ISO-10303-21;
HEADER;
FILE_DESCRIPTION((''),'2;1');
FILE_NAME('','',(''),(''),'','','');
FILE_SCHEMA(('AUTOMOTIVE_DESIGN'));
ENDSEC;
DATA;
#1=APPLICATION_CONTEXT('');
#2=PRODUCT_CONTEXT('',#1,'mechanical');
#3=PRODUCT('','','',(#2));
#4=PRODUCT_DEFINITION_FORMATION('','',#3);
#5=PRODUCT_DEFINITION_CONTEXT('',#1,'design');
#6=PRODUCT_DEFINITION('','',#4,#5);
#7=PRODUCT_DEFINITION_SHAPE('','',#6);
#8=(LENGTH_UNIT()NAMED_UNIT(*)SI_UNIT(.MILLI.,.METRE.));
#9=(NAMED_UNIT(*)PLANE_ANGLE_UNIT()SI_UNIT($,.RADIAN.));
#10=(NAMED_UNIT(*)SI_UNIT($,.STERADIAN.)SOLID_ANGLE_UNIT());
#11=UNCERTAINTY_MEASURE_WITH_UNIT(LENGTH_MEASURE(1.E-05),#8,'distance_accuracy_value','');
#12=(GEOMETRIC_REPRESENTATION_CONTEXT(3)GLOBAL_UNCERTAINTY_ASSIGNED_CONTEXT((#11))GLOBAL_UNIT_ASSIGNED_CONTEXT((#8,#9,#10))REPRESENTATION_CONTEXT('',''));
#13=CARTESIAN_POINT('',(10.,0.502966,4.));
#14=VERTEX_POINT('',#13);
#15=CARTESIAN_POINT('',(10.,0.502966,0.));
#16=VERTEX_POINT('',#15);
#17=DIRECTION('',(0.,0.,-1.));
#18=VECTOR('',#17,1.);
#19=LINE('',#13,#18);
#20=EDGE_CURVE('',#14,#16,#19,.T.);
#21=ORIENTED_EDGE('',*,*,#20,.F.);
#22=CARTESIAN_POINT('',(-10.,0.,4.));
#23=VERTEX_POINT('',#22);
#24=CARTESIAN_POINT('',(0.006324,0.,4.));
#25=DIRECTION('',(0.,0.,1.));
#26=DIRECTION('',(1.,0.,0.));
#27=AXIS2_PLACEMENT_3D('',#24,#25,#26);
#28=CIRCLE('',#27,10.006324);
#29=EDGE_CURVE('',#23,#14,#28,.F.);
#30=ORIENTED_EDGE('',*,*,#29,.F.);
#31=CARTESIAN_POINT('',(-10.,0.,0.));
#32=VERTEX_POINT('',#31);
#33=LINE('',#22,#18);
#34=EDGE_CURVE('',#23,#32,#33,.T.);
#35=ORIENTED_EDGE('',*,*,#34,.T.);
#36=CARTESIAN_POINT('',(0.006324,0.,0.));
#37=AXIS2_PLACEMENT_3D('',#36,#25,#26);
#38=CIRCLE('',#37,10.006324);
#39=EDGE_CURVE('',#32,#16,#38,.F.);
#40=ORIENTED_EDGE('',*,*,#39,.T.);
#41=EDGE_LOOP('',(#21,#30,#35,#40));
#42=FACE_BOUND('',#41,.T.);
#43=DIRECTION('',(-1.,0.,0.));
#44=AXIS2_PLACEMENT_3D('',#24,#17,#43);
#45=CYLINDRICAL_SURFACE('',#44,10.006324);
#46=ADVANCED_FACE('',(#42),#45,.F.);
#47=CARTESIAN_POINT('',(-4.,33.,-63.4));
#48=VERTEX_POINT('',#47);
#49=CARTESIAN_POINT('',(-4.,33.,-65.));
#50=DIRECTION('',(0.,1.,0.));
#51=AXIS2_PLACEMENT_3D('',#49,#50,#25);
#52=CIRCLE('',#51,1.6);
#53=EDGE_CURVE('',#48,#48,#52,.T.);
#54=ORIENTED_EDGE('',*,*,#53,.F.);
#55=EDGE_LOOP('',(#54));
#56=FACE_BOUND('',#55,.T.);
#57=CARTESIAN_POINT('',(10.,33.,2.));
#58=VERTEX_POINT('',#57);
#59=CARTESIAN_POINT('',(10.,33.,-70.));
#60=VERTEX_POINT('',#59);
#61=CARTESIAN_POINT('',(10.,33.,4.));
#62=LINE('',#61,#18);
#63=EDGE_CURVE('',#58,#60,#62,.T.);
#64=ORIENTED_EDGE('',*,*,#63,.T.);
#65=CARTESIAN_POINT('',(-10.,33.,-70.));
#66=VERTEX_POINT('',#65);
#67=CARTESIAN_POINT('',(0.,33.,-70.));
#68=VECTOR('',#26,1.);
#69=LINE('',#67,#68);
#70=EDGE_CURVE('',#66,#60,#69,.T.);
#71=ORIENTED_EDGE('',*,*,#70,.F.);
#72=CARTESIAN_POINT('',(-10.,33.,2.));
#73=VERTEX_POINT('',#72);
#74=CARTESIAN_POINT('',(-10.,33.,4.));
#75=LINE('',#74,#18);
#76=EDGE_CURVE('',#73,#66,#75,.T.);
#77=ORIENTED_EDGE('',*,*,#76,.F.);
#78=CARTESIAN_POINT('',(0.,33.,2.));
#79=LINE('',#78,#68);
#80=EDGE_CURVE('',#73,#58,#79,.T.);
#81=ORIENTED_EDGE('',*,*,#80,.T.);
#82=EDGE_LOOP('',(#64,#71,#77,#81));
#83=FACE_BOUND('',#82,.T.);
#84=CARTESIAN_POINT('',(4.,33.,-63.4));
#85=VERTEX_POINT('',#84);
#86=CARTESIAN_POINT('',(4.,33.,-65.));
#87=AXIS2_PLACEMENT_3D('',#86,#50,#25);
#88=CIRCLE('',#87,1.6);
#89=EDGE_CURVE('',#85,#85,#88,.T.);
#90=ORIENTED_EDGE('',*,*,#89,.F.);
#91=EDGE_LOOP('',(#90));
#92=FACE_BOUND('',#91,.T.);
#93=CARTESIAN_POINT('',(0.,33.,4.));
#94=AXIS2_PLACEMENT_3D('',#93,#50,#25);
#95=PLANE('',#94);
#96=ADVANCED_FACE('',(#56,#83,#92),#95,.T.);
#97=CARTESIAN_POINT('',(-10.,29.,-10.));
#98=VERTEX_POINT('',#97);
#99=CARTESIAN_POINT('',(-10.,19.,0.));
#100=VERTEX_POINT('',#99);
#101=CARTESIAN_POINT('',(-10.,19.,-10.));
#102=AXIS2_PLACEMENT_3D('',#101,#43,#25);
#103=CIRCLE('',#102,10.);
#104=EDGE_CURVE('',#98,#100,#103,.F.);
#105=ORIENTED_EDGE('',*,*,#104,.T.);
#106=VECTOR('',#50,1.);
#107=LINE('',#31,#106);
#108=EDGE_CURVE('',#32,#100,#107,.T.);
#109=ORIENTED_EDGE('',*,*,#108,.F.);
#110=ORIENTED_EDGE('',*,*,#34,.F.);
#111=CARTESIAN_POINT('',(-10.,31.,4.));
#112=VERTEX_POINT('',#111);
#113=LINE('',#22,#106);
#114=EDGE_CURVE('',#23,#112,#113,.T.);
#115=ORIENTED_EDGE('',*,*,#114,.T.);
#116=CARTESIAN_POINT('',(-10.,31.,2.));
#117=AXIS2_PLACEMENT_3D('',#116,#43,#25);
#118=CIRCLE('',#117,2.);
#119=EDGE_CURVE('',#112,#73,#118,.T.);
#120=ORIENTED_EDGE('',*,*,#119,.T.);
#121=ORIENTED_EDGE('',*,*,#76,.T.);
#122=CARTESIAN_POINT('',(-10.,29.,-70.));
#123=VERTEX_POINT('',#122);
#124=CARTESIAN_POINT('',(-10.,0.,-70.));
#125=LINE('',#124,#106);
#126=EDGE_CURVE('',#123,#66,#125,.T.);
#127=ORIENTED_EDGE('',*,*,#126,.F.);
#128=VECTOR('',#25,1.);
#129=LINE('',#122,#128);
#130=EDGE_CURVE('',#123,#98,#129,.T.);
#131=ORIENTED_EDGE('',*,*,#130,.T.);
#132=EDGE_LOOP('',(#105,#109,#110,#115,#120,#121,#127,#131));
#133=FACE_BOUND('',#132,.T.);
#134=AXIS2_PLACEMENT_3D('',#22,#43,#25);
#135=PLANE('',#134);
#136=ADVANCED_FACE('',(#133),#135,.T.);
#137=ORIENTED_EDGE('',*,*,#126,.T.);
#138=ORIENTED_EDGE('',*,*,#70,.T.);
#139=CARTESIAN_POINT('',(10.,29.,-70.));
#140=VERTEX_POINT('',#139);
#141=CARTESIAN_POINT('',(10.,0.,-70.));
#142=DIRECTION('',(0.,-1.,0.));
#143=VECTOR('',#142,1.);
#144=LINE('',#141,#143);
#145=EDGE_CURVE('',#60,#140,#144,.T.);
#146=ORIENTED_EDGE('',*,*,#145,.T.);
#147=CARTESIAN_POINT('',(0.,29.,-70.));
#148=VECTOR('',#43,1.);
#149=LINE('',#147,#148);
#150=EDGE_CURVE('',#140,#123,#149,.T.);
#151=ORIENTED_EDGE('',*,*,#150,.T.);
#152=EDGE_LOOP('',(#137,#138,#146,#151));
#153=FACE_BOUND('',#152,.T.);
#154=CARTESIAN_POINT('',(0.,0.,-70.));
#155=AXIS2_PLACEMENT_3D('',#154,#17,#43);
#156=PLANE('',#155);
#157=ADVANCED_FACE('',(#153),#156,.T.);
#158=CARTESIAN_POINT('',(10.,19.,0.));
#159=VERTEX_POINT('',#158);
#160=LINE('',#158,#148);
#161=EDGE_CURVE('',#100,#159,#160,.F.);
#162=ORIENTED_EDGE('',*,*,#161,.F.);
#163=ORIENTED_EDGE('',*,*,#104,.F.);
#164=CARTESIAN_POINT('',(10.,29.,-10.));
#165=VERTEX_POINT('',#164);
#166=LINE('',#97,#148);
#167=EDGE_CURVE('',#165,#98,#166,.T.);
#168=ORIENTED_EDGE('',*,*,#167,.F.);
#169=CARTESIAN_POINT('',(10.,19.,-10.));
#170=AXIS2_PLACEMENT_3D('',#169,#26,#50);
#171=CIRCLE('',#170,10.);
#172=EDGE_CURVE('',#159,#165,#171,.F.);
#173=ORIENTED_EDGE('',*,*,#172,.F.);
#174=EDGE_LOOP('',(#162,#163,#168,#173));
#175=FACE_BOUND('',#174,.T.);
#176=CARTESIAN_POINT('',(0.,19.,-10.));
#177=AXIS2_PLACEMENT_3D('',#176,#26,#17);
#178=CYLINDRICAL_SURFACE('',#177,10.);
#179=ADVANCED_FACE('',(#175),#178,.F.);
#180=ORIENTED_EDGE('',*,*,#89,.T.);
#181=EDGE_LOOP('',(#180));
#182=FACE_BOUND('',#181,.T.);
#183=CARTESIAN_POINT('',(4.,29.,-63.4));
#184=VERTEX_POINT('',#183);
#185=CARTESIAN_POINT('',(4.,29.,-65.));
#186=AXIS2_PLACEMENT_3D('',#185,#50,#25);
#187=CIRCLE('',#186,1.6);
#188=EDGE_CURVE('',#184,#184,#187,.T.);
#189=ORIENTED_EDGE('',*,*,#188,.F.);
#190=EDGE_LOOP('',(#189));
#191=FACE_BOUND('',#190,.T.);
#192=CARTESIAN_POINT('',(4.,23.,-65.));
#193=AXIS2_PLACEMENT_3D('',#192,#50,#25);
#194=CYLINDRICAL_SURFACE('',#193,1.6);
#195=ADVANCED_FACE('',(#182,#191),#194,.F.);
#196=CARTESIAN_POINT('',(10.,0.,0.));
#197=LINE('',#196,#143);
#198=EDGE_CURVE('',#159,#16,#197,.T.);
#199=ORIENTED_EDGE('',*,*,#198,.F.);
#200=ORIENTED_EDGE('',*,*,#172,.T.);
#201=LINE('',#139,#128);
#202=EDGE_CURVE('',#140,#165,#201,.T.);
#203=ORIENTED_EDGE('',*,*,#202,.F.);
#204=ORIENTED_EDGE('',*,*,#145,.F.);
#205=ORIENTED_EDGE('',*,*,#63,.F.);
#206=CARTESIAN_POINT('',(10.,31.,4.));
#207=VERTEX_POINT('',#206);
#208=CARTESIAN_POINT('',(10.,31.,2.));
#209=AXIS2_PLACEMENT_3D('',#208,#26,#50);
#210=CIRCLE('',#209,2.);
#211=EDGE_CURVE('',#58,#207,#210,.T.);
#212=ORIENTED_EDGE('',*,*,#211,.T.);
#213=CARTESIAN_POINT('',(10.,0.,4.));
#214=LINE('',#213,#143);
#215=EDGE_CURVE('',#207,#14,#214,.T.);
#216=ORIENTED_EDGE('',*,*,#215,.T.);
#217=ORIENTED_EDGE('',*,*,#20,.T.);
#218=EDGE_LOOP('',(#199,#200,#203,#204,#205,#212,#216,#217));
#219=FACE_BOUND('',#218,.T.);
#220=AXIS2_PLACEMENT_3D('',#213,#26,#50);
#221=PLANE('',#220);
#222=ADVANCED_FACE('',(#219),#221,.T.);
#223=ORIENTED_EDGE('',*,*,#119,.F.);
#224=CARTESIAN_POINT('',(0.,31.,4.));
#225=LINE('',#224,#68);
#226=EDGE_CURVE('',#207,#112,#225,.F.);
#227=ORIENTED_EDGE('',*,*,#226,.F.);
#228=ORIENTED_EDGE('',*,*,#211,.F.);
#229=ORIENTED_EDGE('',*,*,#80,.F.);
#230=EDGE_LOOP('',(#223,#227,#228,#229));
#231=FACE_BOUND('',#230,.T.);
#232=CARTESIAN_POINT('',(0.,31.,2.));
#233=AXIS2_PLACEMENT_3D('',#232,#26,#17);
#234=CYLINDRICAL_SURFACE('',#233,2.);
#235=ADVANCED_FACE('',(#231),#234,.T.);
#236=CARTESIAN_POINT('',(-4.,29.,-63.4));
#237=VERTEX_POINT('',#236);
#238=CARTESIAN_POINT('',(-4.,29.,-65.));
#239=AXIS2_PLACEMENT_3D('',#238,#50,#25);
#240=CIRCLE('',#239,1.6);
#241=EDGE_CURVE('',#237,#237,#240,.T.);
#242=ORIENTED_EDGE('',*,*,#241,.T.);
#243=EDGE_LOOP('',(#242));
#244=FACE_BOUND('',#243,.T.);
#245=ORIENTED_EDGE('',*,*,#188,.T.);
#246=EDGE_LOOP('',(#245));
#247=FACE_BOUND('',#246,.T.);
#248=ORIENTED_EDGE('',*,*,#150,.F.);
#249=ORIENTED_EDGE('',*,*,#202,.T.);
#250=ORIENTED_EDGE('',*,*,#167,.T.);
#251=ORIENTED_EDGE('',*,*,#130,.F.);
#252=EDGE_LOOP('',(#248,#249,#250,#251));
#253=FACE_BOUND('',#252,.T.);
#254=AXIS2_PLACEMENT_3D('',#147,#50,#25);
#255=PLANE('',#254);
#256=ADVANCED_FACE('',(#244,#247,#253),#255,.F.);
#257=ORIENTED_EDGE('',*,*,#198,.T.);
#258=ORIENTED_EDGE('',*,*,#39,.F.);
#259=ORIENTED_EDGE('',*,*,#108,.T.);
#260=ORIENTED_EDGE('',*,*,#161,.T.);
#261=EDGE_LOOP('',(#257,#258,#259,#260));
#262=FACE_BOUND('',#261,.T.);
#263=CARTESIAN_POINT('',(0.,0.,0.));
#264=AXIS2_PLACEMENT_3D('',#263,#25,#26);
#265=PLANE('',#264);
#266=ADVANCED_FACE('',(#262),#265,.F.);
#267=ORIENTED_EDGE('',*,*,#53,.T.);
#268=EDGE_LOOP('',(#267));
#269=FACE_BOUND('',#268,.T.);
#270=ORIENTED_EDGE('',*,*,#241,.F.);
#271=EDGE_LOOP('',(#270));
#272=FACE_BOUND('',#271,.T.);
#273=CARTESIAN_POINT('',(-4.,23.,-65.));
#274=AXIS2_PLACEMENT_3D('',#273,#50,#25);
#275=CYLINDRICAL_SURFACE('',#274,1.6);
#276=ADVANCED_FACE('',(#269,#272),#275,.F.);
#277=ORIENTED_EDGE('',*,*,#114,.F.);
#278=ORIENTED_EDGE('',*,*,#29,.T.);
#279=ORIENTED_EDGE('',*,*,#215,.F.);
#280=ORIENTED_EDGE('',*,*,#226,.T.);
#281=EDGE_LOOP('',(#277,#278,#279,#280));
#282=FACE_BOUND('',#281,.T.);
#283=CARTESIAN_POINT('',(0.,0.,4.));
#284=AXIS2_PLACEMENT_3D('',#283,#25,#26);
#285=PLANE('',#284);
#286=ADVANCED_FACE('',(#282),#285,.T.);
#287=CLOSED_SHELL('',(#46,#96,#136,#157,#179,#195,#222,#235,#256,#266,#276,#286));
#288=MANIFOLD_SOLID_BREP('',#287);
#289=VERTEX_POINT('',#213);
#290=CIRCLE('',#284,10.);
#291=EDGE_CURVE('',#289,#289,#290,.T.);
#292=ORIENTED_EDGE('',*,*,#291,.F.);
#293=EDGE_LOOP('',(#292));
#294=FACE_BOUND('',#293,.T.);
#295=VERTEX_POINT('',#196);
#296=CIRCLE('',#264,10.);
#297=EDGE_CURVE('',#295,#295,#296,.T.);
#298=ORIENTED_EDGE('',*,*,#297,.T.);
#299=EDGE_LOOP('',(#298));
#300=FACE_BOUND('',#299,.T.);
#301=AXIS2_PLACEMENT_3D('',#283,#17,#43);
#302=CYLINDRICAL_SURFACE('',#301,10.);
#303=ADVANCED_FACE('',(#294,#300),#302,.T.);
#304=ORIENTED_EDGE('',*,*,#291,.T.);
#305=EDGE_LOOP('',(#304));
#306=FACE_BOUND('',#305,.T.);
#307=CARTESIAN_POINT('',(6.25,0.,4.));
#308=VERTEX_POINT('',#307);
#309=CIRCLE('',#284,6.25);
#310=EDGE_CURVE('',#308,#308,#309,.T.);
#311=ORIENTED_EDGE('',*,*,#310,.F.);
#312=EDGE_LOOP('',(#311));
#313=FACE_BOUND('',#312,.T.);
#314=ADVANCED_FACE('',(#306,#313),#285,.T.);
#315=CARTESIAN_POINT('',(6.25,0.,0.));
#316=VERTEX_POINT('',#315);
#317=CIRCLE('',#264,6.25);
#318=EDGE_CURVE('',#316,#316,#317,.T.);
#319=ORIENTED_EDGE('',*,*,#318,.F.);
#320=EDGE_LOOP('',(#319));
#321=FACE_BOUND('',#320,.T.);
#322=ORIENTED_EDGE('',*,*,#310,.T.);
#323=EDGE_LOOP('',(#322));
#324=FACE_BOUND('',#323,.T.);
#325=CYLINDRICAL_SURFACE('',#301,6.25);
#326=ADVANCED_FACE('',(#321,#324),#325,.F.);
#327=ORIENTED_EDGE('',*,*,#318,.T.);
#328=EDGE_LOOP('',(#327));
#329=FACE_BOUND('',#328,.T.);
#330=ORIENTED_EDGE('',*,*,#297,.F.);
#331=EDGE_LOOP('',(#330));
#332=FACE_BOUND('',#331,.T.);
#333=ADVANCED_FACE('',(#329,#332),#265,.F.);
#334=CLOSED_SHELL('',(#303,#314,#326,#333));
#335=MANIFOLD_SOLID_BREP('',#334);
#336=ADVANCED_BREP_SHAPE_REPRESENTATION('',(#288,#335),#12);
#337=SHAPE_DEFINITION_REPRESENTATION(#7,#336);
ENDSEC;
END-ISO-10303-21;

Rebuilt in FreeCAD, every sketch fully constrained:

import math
import FreeCAD as App
import Part
import Sketcher


def edges_at(feature, points):
    """Names of the edges that pass closest to the given points."""
    edges = feature.Shape.Edges
    near = lambda p: min(range(len(edges)), key=lambda i: edges[i].distToShape(Part.Vertex(*p))[0])
    return sorted({f"Edge{near(p) + 1}" for p in points})


def add_polygon(sketch, points):
    """Adds a closed chain of lines whose ends are joined by coincident constraints."""
    first, n = sketch.GeometryCount, len(points)
    for a, b in zip(points, points[1:] + points[:1]):
        sketch.addGeometry(Part.LineSegment(App.Vector(*a, 0), App.Vector(*b, 0)), False)
    for i in range(n):
        sketch.addConstraint(Sketcher.Constraint("Coincident", first + i, 2, first + (i + 1) % n, 1))

doc = App.newDocument("Part")
body = doc.addObject("PartDesign::Body", "Body")

# Sketch on XY plane
sketch1 = doc.addObject("Sketcher::SketchObject", "Sketch")
body.addObject(sketch1)
sketch1.AttachmentSupport = (doc.XY_Plane, [""])
sketch1.MapMode = "FlatFace"
sketch1.addGeometry(Part.LineSegment(App.Vector(-10, 33, 0), App.Vector(-10, 0, 0)), False)
sketch1.addGeometry(Part.ArcOfCircle(Part.Circle(App.Vector(0, 0, 0), App.Vector(0, 0, 1), 10), math.radians(3), math.radians(180)), False)
sketch1.addGeometry(Part.LineSegment(App.Vector(10, 1, 0), App.Vector(10, 33, 0)), False)
sketch1.addGeometry(Part.LineSegment(App.Vector(10, 33, 0), App.Vector(-10, 33, 0)), False)
sketch1.addConstraint(Sketcher.Constraint("Tangent", 0, 2, 1, 2))
sketch1.addConstraint(Sketcher.Constraint("Coincident", 1, 1, 2, 1))
sketch1.addConstraint(Sketcher.Constraint("Coincident", 2, 2, 3, 1))
sketch1.addConstraint(Sketcher.Constraint("Coincident", 3, 2, 0, 1))
sketch1.addConstraint(Sketcher.Constraint("Vertical", 0))
sketch1.addConstraint(Sketcher.Constraint("Vertical", 2))
sketch1.addConstraint(Sketcher.Constraint("Horizontal", 3))
sketch1.addConstraint(Sketcher.Constraint("PointOnObject", 1, 3, -1))
sketch1.addConstraint(Sketcher.Constraint("DistanceX", 3, 2, 3, 1, 20.0))
sketch1.addConstraint(Sketcher.Constraint("DistanceY", 0, 2, 0, 1, 33.0))
sketch1.addConstraint(Sketcher.Constraint("DistanceX", 0, 2, -1, 1, 10.0))
sketch1.addConstraint(Sketcher.Constraint("Radius", 1, 10.006324))
pad1 = doc.addObject("PartDesign::Pad", "Pad")
body.addObject(pad1)
pad1.Profile = sketch1
pad1.Length = 4

# Sketch on XY plane
sketch2 = doc.addObject("Sketcher::SketchObject", "Sketch001")
body.addObject(sketch2)
sketch2.AttachmentSupport = (doc.XY_Plane, [""])
sketch2.MapMode = "FlatFace"
add_polygon(sketch2, [(10, 33), (10, 29), (-10, 29), (-10, 33)])  # lines 0-3
sketch2.addConstraint(Sketcher.Constraint("Vertical", 0))
sketch2.addConstraint(Sketcher.Constraint("Horizontal", 1))
sketch2.addConstraint(Sketcher.Constraint("Vertical", 2))
sketch2.addConstraint(Sketcher.Constraint("Horizontal", 3))
sketch2.addConstraint(Sketcher.Constraint("DistanceX", 1, 2, 1, 1, 20.0))
sketch2.addConstraint(Sketcher.Constraint("DistanceY", 0, 2, 0, 1, 4.0))
sketch2.addConstraint(Sketcher.Constraint("DistanceX", -1, 1, 0, 2, 10.0))
sketch2.addConstraint(Sketcher.Constraint("DistanceY", -1, 1, 0, 2, 29.0))
pad2 = doc.addObject("PartDesign::Pad", "Pad001")
body.addObject(pad2)
pad2.Profile = sketch2
pad2.Length = 70
pad2.Reversed = True

# Sketch on XZ plane
sketch3 = doc.addObject("Sketcher::SketchObject", "Sketch002")
body.addObject(sketch3)
sketch3.AttachmentSupport = (doc.XZ_Plane, [""])
sketch3.MapMode = "FlatFace"
sketch3.AttachmentOffset = App.Placement(App.Vector(0, 0, -33), App.Rotation())
sketch3.addGeometry(Part.Circle(App.Vector(-4, -65, 0), App.Vector(0, 0, 1), 1.6), False)
sketch3.addGeometry(Part.Circle(App.Vector(4, -65, 0), App.Vector(0, 0, 1), 1.6), False)
sketch3.addConstraint(Sketcher.Constraint("Equal", 0, 1))
sketch3.addConstraint(Sketcher.Constraint("Symmetric", 0, 3, 1, 3, -2))
sketch3.addConstraint(Sketcher.Constraint("Diameter", 0, 3.2))
sketch3.addConstraint(Sketcher.Constraint("DistanceX", 0, 3, -1, 1, 4.0))
sketch3.addConstraint(Sketcher.Constraint("DistanceY", 0, 3, -1, 1, 65.0))
pocket1 = doc.addObject("PartDesign::Pocket", "Pocket")
body.addObject(pocket1)
pocket1.Profile = sketch3
pocket1.Length = 10
pocket1.Reversed = True
doc.recompute()

fillet = doc.addObject("PartDesign::Fillet", "Fillet")
body.addObject(fillet)
fillet.Base = (pocket1, edges_at(pocket1, [(0, 29, 0)]))
fillet.Radius = 10
doc.recompute()

fillet2 = doc.addObject("PartDesign::Fillet", "Fillet001")
body.addObject(fillet2)
fillet2.Base = (fillet, edges_at(fillet, [(0, 33, 4)]))
fillet2.Radius = 2
body2 = doc.addObject("PartDesign::Body", "Body001")

# Sketch on XY plane
sketch4 = doc.addObject("Sketcher::SketchObject", "Sketch003")
body2.addObject(sketch4)
sketch4.AttachmentSupport = (doc.getObject("XY_Plane001"), [""])
sketch4.MapMode = "FlatFace"
sketch4.addGeometry(Part.Circle(App.Vector(0, 0, 0), App.Vector(0, 0, 1), 10), False)
sketch4.addGeometry(Part.Circle(App.Vector(0, 0, 0), App.Vector(0, 0, 1), 6), False)
sketch4.addConstraint(Sketcher.Constraint("Coincident", 0, 3, -1, 1))
sketch4.addConstraint(Sketcher.Constraint("Coincident", 1, 3, -1, 1))
sketch4.addConstraint(Sketcher.Constraint("Diameter", 0, 20.0))
sketch4.addConstraint(Sketcher.Constraint("Diameter", 1, 12.5))
pad3 = doc.addObject("PartDesign::Pad", "Pad002")
body2.addObject(pad3)
pad3.Profile = sketch4
pad3.Length = 4

doc.recompute()
